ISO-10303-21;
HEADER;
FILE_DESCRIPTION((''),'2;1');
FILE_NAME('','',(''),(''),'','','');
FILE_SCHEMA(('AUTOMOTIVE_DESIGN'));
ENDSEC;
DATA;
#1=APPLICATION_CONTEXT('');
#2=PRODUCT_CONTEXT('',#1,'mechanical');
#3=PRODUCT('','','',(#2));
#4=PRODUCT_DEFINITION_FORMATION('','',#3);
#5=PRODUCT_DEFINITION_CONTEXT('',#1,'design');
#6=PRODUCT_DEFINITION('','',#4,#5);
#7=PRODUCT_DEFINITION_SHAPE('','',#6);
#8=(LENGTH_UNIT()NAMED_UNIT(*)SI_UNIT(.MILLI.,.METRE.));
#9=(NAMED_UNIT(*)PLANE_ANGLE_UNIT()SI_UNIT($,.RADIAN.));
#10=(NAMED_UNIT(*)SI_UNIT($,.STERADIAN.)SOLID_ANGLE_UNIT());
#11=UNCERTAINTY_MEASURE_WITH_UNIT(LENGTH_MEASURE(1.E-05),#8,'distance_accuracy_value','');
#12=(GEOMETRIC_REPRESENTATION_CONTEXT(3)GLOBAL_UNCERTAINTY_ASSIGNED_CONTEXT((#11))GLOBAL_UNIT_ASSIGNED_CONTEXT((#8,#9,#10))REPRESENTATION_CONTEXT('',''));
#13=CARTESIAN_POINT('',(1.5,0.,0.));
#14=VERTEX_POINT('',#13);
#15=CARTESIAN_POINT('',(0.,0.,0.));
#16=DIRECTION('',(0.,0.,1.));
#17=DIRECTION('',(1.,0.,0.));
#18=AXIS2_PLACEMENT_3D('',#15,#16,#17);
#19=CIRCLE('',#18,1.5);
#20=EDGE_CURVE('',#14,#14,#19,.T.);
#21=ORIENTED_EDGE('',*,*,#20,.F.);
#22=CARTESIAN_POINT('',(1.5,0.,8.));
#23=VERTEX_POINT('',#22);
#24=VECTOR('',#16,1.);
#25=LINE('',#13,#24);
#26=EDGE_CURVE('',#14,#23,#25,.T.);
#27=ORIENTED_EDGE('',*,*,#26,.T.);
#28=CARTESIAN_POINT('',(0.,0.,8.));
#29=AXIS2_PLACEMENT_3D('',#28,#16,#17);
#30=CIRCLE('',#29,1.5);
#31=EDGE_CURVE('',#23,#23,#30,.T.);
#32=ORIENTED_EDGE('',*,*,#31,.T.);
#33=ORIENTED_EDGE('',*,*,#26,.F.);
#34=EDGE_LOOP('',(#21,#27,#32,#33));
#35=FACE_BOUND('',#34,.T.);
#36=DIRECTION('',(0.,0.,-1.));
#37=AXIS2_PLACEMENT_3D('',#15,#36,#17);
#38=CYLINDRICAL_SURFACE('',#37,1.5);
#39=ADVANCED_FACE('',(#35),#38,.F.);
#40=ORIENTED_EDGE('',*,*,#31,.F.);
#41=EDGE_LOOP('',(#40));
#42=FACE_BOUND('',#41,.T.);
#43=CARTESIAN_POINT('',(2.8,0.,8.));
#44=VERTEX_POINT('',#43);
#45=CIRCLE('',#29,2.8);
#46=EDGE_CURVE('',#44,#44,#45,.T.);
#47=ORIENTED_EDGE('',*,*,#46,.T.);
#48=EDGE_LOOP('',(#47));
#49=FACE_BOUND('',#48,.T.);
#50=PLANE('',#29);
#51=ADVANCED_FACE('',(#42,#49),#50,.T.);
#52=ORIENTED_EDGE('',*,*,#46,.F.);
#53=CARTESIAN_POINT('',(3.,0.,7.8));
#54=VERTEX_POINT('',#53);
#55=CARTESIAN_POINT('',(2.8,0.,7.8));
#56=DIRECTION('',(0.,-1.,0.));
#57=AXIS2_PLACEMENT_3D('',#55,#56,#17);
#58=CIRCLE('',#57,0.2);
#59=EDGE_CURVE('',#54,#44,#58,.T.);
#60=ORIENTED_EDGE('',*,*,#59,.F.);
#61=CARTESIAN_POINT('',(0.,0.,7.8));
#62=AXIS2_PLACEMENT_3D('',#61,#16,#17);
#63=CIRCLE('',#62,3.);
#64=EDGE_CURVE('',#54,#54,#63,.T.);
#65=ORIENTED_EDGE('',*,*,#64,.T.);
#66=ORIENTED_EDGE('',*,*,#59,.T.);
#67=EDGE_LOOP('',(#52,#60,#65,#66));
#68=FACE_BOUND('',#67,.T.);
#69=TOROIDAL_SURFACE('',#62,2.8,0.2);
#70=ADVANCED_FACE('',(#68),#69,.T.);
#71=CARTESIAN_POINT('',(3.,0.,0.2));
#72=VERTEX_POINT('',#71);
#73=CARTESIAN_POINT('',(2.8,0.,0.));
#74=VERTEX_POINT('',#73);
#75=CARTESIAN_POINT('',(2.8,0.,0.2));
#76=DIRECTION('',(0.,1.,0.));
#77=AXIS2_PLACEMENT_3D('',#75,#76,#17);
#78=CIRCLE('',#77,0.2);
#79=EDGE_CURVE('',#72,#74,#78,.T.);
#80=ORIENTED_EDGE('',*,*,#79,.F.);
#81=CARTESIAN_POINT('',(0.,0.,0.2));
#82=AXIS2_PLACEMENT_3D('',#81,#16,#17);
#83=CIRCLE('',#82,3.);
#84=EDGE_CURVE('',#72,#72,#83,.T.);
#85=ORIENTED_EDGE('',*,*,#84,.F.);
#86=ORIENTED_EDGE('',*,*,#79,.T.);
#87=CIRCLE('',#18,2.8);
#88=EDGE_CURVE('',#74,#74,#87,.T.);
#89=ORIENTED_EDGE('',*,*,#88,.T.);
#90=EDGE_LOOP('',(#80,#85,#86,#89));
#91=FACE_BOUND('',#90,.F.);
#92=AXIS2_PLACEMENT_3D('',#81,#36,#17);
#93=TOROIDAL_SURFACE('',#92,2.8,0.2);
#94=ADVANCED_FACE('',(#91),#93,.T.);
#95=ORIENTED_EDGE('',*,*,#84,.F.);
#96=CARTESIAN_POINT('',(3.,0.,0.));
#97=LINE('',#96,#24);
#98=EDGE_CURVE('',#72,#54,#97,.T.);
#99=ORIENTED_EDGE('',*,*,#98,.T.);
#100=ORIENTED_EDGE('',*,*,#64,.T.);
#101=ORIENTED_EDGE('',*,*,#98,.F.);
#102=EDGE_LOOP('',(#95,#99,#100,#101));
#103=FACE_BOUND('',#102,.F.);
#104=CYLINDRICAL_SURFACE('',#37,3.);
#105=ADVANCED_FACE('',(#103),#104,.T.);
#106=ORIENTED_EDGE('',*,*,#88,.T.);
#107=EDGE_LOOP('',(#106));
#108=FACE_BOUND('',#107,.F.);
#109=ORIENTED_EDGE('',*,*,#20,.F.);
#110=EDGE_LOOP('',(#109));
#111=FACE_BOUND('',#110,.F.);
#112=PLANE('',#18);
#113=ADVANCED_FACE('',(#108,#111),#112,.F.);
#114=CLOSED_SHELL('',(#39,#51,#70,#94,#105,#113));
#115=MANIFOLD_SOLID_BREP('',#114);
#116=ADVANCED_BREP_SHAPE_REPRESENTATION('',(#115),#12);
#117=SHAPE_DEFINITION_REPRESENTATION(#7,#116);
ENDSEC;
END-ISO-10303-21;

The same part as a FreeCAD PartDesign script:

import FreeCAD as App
import Part
import Sketcher
from FreeCAD import Vector
Q = App.Units.Quantity


def edges_at(feature, points):
    """Names of the edges that pass closest to the given points."""
    edges = feature.Shape.Edges
    near = lambda p: min(range(len(edges)), key=lambda i: edges[i].distToShape(Part.Vertex(*p))[0])
    return sorted({f"Edge{near(p) + 1}" for p in points})

doc = App.newDocument("Part")
params = doc.addObject("Spreadsheet::Sheet", "Params")
for row, (alias, value) in enumerate([
    ("sketch1_diameter", "6 mm"),
    ("sketch1_diameter2", "3 mm"),
    ("pad1_length", "8 mm"),
    ("fillet_radius", "0.2 mm"),
], start=1):
    params.set(f"A{row}", alias)
    params.set(f"B{row}", "=" + value)
    params.setAlias(f"B{row}", alias)

body = doc.addObject("PartDesign::Body", "Body")

# Sketch on XY plane
sketch1 = body.newObject("Sketcher::SketchObject", "Sketch")
sketch1.AttachmentSupport = (doc.getObject("XY_Plane"), [""])
sketch1.MapMode = "FlatFace"
sketch1.addGeometry(Part.Circle(Vector(0, 0, 0), Vector(0, 0, 1), 3), False)
sketch1.addGeometry(Part.Circle(Vector(0, 0, 0), Vector(0, 0, 1), 1.5), False)
sketch1.addConstraint(Sketcher.Constraint("Coincident", 0, 3, -1, 1))
sketch1.addConstraint(Sketcher.Constraint("Coincident", 1, 3, -1, 1))
sketch1.addConstraint(Sketcher.Constraint("Diameter", 0, Q("6 mm")))
sketch1.addConstraint(Sketcher.Constraint("Diameter", 1, Q("3 mm")))
sketch1.setExpression("Constraints[2]", "Params.sketch1_diameter")
sketch1.setExpression("Constraints[3]", "Params.sketch1_diameter2")
pad1 = body.newObject("PartDesign::Pad", "Pad")
pad1.Profile = sketch1
pad1.setExpression("Length", "Params.pad1_length")
doc.recompute()

fillet = body.newObject("PartDesign::Fillet", "Fillet")
fillet.Base = (pad1, edges_at(pad1, [(-3, 0, 0), (-3, 0, 8)]))
fillet.setExpression("Radius", "Params.fillet_radius")

doc.recompute()
